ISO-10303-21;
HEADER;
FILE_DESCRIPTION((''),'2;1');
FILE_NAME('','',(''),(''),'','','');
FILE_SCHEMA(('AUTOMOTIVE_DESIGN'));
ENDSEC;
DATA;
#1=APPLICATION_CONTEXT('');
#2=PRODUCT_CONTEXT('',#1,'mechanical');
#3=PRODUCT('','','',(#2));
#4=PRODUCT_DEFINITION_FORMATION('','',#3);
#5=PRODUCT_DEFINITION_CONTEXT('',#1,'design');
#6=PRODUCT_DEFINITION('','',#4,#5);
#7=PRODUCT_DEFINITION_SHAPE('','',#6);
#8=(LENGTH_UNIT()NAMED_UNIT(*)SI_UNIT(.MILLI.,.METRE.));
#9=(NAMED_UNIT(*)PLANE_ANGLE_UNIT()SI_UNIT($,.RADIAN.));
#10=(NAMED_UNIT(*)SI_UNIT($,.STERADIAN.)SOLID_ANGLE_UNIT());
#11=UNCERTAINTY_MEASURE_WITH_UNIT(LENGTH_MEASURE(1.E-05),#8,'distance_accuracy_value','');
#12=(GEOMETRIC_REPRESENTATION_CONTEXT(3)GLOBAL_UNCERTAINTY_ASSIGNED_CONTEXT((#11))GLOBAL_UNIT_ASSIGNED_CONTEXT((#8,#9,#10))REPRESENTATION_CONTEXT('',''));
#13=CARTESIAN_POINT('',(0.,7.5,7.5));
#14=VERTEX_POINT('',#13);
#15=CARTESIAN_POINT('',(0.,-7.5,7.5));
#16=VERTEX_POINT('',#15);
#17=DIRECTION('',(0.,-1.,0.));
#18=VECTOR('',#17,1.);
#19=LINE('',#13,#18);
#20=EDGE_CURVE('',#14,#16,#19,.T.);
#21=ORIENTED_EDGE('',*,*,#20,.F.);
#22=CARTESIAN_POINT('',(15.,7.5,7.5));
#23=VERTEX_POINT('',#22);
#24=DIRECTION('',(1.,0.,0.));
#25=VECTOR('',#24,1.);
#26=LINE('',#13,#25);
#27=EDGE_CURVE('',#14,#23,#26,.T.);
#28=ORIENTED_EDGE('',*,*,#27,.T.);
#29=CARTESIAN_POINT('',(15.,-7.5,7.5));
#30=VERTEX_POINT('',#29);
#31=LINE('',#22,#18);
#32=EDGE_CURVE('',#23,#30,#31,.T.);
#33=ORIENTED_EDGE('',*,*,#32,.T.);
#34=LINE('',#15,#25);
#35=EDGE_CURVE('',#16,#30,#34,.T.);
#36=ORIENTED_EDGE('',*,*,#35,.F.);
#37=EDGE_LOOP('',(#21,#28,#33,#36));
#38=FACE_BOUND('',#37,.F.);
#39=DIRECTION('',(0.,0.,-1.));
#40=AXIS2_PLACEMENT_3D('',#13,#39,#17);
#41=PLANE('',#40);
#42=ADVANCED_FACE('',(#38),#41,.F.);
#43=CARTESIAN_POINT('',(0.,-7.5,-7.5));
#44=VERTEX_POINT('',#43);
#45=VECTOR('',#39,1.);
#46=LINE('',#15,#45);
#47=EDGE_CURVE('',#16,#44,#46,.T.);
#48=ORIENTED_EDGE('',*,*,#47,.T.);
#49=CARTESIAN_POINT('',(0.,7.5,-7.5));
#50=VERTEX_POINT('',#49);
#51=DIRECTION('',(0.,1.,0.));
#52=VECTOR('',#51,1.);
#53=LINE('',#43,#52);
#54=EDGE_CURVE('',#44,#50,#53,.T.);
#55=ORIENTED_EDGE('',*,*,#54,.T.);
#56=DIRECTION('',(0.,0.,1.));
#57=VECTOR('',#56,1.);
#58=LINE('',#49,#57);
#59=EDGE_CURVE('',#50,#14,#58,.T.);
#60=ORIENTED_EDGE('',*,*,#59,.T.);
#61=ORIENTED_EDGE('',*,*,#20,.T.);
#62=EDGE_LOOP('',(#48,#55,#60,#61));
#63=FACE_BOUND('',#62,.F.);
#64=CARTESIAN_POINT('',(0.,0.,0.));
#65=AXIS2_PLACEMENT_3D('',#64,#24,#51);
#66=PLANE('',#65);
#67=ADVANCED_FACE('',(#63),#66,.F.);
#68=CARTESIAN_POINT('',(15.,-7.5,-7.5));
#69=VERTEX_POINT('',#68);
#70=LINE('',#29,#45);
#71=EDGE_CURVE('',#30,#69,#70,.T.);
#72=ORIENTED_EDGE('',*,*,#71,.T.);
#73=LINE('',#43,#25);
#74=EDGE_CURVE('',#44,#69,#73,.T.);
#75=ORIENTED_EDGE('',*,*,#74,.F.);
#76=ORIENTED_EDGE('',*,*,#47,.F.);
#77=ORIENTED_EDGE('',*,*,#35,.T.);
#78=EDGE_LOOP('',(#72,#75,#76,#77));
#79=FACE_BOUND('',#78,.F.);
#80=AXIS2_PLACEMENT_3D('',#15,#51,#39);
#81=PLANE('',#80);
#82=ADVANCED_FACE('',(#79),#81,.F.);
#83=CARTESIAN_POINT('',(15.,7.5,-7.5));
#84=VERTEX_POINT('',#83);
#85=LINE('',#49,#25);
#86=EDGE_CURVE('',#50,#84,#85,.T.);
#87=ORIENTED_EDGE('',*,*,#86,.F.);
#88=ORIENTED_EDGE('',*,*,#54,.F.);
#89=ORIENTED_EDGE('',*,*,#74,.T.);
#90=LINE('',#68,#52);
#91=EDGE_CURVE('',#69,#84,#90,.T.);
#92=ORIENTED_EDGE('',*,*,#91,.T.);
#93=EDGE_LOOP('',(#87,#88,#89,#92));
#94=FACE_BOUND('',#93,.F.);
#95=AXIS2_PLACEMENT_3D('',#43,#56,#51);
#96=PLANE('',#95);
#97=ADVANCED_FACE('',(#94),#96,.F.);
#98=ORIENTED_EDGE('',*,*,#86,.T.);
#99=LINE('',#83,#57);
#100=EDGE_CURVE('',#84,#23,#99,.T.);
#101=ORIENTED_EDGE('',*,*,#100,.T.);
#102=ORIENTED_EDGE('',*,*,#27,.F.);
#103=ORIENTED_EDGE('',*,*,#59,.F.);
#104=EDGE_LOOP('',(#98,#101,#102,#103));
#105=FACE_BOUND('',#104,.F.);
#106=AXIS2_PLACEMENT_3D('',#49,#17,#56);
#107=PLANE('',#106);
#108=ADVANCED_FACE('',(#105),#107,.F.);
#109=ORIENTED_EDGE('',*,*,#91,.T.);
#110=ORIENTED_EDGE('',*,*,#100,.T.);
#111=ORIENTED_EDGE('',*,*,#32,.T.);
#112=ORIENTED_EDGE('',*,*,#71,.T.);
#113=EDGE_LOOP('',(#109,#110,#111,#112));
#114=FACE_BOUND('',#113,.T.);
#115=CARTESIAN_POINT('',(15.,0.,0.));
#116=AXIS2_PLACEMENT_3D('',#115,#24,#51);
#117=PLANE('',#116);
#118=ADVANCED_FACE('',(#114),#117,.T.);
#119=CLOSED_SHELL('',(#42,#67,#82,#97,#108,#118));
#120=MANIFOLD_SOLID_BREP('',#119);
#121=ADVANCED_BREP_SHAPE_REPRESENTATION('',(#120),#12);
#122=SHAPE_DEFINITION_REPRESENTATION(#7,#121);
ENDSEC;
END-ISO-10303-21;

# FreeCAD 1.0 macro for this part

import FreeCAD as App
import Part
import Sketcher

V = App.Vector
Q = App.Units.Quantity

doc = App.newDocument("Part")
body = doc.addObject("PartDesign::Body", "Body")

sketch1 = body.newObject("Sketcher::SketchObject", "Sketch")
sketch1.AttachmentSupport = (doc.getObject("YZ_Plane"), [""])
sketch1.MapMode = "FlatFace"
sketch1.addGeometry([
    Part.LineSegment(V(-8, 8, 0), V(-8, -8, 0)),
    Part.LineSegment(V(-8, -8, 0), V(8, -8, 0)),
    Part.LineSegment(V(8, -8, 0), V(8, 8, 0)),
    Part.LineSegment(V(8, 8, 0), V(-8, 8, 0)),
], False)
sketch1.addConstraint([
    Sketcher.Constraint("Coincident", 0, 2, 1, 1),
    Sketcher.Constraint("Coincident", 1, 2, 2, 1),
    Sketcher.Constraint("Coincident", 2, 2, 3, 1),
    Sketcher.Constraint("Coincident", 3, 2, 0, 1),
    Sketcher.Constraint("Vertical", 0),
    Sketcher.Constraint("Horizontal", 1),
    Sketcher.Constraint("Vertical", 2),
    Sketcher.Constraint("Horizontal", 3),
    Sketcher.Constraint("Symmetric", 0, 2, 2, 2, -1, 1),
    Sketcher.Constraint("Equal", 3, 0),
    Sketcher.Constraint("DistanceX", 1, 1, 1, 2, Q("15 mm")),
])
pad1 = body.newObject("PartDesign::Pad", "Pad")
pad1.Profile = sketch1
pad1.Length = 15

doc.recompute()
